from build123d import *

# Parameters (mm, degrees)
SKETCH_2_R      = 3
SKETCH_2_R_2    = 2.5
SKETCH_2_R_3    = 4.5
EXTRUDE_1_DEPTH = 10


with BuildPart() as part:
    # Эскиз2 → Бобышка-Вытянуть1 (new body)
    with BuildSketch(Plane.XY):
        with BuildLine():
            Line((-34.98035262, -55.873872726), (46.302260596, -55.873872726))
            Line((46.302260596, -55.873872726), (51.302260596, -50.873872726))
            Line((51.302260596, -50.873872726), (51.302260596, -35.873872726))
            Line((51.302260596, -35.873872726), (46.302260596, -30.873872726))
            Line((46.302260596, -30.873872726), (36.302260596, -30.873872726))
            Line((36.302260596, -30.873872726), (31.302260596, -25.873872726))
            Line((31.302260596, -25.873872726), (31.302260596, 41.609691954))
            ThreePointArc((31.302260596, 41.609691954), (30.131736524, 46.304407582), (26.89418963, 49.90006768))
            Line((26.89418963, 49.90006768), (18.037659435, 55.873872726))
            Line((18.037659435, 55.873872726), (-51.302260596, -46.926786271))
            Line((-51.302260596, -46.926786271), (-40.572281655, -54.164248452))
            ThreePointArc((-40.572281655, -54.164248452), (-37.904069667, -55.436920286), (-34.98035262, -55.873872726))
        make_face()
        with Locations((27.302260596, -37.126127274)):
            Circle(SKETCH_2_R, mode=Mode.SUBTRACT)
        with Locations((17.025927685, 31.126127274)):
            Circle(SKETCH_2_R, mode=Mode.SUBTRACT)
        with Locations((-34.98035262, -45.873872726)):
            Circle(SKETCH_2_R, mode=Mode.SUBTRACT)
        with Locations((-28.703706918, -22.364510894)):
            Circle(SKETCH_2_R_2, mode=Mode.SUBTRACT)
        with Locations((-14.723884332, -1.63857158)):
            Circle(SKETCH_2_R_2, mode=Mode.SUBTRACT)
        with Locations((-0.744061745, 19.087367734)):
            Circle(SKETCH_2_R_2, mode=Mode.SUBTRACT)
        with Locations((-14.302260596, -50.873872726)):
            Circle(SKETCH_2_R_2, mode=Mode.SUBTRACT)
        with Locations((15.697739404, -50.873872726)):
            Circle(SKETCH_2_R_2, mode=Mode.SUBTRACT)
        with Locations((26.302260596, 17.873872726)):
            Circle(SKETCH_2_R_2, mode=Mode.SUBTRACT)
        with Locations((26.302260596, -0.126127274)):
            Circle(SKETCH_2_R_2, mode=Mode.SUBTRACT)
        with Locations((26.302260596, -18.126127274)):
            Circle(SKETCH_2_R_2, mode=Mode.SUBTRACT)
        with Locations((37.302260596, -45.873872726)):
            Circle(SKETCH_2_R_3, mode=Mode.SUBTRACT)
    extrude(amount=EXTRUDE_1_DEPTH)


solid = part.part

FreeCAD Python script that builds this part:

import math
import FreeCAD as App
import Part
import Sketcher

V = App.Vector
Q = App.Units.Quantity

doc = App.newDocument("Part")
body = doc.addObject("PartDesign::Body", "Body")

sketch1 = doc.addObject("Sketcher::SketchObject", "Sketch")
body.addObject(sketch1)
sketch1.AttachmentSupport = (doc.XY_Plane, [""])
sketch1.MapMode = "FlatFace"
sketch1.addGeometry([
    Part.LineSegment(V(-35, -55.9, 0), V(46.3, -55.9, 0)),
    Part.LineSegment(V(46.3, -55.9, 0), V(51.3, -50.9, 0)),
    Part.LineSegment(V(51.3, -50.9, 0), V(51.3, -35.9, 0)),
    Part.LineSegment(V(51.3, -35.9, 0), V(46.3, -30.9, 0)),
    Part.LineSegment(V(46.3, -30.9, 0), V(36.3, -30.9, 0)),
    Part.LineSegment(V(36.3, -30.9, 0), V(31.3, -25.9, 0)),
    Part.LineSegment(V(31.3, -25.9, 0), V(31.3, 41.6, 0)),
    Part.ArcOfCircle(Part.Circle(V(21.3, 41.6, 0), V(0, 0, 1), 10), math.radians(0), math.radians(56)),
    Part.LineSegment(V(26.9, 49.9, 0), V(18, 55.9, 0)),
    Part.LineSegment(V(18, 55.9, 0), V(-51.3, -46.9, 0)),
    Part.LineSegment(V(-51.3, -46.9, 0), V(-40.6, -54.2, 0)),
    Part.ArcOfCircle(Part.Circle(V(-35, -45.9, 0), V(0, 0, 1), 10), math.radians(-124), math.radians(-90)),
    Part.Circle(V(-35, -45.9, 0), V(0, 0, 1), 3),
    Part.Circle(V(-14.3, -50.9, 0), V(0, 0, 1), 2.5),
    Part.Circle(V(-28.7, -22.4, 0), V(0, 0, 1), 2.5),
    Part.Circle(V(15.7, -50.9, 0), V(0, 0, 1), 2.5),
    Part.Circle(V(37.3, -45.9, 0), V(0, 0, 1), 4.5),
    Part.Circle(V(27.3, -37.1, 0), V(0, 0, 1), 3),
    Part.Circle(V(26.3, -18.1, 0), V(0, 0, 1), 2.5),
    Part.Circle(V(-14.7, -1.6, 0), V(0, 0, 1), 2.5),
    Part.Circle(V(-0.7, 19.1, 0), V(0, 0, 1), 2.5),
    Part.Circle(V(26.3, -0.1, 0), V(0, 0, 1), 2.5),
    Part.Circle(V(17, 31.1, 0), V(0, 0, 1), 3),
    Part.Circle(V(26.3, 17.9, 0), V(0, 0, 1), 2.5),
], False)
sketch1.addConstraint([
    Sketcher.Constraint("Coincident", 0, 2, 1, 1),
    Sketcher.Constraint("Coincident", 1, 2, 2, 1),
    Sketcher.Constraint("Coincident", 2, 2, 3, 1),
    Sketcher.Constraint("Coincident", 3, 2, 4, 1),
    Sketcher.Constraint("Coincident", 4, 2, 5, 1),
    Sketcher.Constraint("Coincident", 5, 2, 6, 1),
    Sketcher.Constraint("Tangent", 6, 2, 7, 1),
    Sketcher.Constraint("Tangent", 7, 2, 8, 1),
    Sketcher.Constraint("Coincident", 8, 2, 9, 1),
    Sketcher.Constraint("Coincident", 9, 2, 10, 1),
    Sketcher.Constraint("Tangent", 10, 2, 11, 1),
    Sketcher.Constraint("Tangent", 11, 2, 0, 1),
    Sketcher.Constraint("Horizontal", 0),
    Sketcher.Constraint("Vertical", 2),
    Sketcher.Constraint("Horizontal", 4),
    Sketcher.Constraint("Vertical", 6),
    Sketcher.Constraint("Coincident", 12, 3, 11, 3),
    Sketcher.Constraint("Equal", 7, 11),
    Sketcher.Constraint("Equal", 13, 14),
    Sketcher.Constraint("Equal", 14, 15),
    Sketcher.Constraint("Equal", 12, 17),
    Sketcher.Constraint("Equal", 15, 18),
    Sketcher.Constraint("Equal", 18, 19),
    Sketcher.Constraint("Equal", 19, 20),
    Sketcher.Constraint("Equal", 20, 21),
    Sketcher.Constraint("Equal", 17, 22),
    Sketcher.Constraint("Equal", 21, 23),
    Sketcher.Constraint("Perpendicular", 1, 3),
    Sketcher.Constraint("Parallel", 3, 5),
    Sketcher.Constraint("Perpendicular", 8, 9),
    Sketcher.Constraint("Perpendicular", 9, 10),
    Sketcher.Constraint("Horizontal", 13, 3, 15, 3),
    Sketcher.Constraint("Horizontal", 12, 3, 16, 3),
    Sketcher.Constraint("Horizontal", 15, 3, 1, 2),
    Sketcher.Constraint("Vertical", 18, 3, 21, 3),
    Sketcher.Constraint("Vertical", 21, 3, 23, 3),
    Sketcher.Constraint("Vertical", 0, 2, 3, 2),
    Sketcher.Constraint("Equal", 1, 3),
    Sketcher.Constraint("Equal", 3, 5),
    Sketcher.Constraint("Diameter", 12, 6.0),
    Sketcher.Constraint("Diameter", 13, 5.0),
    Sketcher.Constraint("Diameter", 16, 9.0),
    Sketcher.Constraint("Radius", 7, 10.0),
    Sketcher.Constraint("DistanceX", 4, 2, 4, 1, 10.0),
    Sketcher.Constraint("DistanceY", 2, 1, 2, 2, 15.0),
    Sketcher.Constraint("Angle", 8, Q("146 deg")),
    Sketcher.Constraint("Distance", 9, 124.0),
    Sketcher.Constraint("DistanceY", 13, 3, 12, 3, 5.0),
    Sketcher.Constraint("DistanceX", 13, 3, 15, 3, 30.0),
    Sketcher.Constraint("DistanceX", 17, 3, 16, 3, 10.0),
    Sketcher.Constraint("DistanceX", 18, 3, 17, 3, 1.0),
    Sketcher.Constraint("DistanceY", 17, 3, 18, 3, 19.0),
    Sketcher.Constraint("DistanceY", 18, 3, 21, 3, 18.0),
    Sketcher.Constraint("DistanceX", 7, 3, 21, 3, 5.0),
    Sketcher.Constraint("DistanceY", 21, 3, 23, 3, 18.0),
    Sketcher.Constraint("DistanceY", 23, 3, 8, 2, 38.0),
    Sketcher.Constraint("DistanceX", 9, 2, 13, 3, 37.0),
    Sketcher.Constraint("DistanceY", 12, 3, 19, 3, 44.235301),
    Sketcher.Constraint("DistanceY", 19, 3, 22, 3, 32.764699),
    Sketcher.Constraint("DistanceY", 20, 3, 7, 2, 30.8127),
    Sketcher.Constraint("DistanceX", 8, 2, 7, 3, 3.264601),
    Sketcher.Constraint("DistanceX", 0, 1, 0, 2, 81.282613),
    Sketcher.Constraint("DistanceX", -1, 1, 7, 3, 21.302261),
    Sketcher.Constraint("DistanceY", -1, 1, 7, 3, 41.609692),
    Sketcher.Constraint("DistanceY", 14, 3, -1, 1, 22.364511),
    Sketcher.Constraint("DistanceX", 20, 3, -1, 1, 0.744062),
    Sketcher.Constraint("DistanceX", 12, 3, 19, 3, 20.256468),
    Sketcher.Constraint("DistanceX", 20, 3, 22, 3, 17.769989),
    Sketcher.Constraint("DistanceX", 14, 3, -1, 1, 28.703707),
])
pad1 = doc.addObject("PartDesign::Pad", "Pad")
body.addObject(pad1)
pad1.Profile = sketch1
pad1.Length = 10

doc.recompute()
